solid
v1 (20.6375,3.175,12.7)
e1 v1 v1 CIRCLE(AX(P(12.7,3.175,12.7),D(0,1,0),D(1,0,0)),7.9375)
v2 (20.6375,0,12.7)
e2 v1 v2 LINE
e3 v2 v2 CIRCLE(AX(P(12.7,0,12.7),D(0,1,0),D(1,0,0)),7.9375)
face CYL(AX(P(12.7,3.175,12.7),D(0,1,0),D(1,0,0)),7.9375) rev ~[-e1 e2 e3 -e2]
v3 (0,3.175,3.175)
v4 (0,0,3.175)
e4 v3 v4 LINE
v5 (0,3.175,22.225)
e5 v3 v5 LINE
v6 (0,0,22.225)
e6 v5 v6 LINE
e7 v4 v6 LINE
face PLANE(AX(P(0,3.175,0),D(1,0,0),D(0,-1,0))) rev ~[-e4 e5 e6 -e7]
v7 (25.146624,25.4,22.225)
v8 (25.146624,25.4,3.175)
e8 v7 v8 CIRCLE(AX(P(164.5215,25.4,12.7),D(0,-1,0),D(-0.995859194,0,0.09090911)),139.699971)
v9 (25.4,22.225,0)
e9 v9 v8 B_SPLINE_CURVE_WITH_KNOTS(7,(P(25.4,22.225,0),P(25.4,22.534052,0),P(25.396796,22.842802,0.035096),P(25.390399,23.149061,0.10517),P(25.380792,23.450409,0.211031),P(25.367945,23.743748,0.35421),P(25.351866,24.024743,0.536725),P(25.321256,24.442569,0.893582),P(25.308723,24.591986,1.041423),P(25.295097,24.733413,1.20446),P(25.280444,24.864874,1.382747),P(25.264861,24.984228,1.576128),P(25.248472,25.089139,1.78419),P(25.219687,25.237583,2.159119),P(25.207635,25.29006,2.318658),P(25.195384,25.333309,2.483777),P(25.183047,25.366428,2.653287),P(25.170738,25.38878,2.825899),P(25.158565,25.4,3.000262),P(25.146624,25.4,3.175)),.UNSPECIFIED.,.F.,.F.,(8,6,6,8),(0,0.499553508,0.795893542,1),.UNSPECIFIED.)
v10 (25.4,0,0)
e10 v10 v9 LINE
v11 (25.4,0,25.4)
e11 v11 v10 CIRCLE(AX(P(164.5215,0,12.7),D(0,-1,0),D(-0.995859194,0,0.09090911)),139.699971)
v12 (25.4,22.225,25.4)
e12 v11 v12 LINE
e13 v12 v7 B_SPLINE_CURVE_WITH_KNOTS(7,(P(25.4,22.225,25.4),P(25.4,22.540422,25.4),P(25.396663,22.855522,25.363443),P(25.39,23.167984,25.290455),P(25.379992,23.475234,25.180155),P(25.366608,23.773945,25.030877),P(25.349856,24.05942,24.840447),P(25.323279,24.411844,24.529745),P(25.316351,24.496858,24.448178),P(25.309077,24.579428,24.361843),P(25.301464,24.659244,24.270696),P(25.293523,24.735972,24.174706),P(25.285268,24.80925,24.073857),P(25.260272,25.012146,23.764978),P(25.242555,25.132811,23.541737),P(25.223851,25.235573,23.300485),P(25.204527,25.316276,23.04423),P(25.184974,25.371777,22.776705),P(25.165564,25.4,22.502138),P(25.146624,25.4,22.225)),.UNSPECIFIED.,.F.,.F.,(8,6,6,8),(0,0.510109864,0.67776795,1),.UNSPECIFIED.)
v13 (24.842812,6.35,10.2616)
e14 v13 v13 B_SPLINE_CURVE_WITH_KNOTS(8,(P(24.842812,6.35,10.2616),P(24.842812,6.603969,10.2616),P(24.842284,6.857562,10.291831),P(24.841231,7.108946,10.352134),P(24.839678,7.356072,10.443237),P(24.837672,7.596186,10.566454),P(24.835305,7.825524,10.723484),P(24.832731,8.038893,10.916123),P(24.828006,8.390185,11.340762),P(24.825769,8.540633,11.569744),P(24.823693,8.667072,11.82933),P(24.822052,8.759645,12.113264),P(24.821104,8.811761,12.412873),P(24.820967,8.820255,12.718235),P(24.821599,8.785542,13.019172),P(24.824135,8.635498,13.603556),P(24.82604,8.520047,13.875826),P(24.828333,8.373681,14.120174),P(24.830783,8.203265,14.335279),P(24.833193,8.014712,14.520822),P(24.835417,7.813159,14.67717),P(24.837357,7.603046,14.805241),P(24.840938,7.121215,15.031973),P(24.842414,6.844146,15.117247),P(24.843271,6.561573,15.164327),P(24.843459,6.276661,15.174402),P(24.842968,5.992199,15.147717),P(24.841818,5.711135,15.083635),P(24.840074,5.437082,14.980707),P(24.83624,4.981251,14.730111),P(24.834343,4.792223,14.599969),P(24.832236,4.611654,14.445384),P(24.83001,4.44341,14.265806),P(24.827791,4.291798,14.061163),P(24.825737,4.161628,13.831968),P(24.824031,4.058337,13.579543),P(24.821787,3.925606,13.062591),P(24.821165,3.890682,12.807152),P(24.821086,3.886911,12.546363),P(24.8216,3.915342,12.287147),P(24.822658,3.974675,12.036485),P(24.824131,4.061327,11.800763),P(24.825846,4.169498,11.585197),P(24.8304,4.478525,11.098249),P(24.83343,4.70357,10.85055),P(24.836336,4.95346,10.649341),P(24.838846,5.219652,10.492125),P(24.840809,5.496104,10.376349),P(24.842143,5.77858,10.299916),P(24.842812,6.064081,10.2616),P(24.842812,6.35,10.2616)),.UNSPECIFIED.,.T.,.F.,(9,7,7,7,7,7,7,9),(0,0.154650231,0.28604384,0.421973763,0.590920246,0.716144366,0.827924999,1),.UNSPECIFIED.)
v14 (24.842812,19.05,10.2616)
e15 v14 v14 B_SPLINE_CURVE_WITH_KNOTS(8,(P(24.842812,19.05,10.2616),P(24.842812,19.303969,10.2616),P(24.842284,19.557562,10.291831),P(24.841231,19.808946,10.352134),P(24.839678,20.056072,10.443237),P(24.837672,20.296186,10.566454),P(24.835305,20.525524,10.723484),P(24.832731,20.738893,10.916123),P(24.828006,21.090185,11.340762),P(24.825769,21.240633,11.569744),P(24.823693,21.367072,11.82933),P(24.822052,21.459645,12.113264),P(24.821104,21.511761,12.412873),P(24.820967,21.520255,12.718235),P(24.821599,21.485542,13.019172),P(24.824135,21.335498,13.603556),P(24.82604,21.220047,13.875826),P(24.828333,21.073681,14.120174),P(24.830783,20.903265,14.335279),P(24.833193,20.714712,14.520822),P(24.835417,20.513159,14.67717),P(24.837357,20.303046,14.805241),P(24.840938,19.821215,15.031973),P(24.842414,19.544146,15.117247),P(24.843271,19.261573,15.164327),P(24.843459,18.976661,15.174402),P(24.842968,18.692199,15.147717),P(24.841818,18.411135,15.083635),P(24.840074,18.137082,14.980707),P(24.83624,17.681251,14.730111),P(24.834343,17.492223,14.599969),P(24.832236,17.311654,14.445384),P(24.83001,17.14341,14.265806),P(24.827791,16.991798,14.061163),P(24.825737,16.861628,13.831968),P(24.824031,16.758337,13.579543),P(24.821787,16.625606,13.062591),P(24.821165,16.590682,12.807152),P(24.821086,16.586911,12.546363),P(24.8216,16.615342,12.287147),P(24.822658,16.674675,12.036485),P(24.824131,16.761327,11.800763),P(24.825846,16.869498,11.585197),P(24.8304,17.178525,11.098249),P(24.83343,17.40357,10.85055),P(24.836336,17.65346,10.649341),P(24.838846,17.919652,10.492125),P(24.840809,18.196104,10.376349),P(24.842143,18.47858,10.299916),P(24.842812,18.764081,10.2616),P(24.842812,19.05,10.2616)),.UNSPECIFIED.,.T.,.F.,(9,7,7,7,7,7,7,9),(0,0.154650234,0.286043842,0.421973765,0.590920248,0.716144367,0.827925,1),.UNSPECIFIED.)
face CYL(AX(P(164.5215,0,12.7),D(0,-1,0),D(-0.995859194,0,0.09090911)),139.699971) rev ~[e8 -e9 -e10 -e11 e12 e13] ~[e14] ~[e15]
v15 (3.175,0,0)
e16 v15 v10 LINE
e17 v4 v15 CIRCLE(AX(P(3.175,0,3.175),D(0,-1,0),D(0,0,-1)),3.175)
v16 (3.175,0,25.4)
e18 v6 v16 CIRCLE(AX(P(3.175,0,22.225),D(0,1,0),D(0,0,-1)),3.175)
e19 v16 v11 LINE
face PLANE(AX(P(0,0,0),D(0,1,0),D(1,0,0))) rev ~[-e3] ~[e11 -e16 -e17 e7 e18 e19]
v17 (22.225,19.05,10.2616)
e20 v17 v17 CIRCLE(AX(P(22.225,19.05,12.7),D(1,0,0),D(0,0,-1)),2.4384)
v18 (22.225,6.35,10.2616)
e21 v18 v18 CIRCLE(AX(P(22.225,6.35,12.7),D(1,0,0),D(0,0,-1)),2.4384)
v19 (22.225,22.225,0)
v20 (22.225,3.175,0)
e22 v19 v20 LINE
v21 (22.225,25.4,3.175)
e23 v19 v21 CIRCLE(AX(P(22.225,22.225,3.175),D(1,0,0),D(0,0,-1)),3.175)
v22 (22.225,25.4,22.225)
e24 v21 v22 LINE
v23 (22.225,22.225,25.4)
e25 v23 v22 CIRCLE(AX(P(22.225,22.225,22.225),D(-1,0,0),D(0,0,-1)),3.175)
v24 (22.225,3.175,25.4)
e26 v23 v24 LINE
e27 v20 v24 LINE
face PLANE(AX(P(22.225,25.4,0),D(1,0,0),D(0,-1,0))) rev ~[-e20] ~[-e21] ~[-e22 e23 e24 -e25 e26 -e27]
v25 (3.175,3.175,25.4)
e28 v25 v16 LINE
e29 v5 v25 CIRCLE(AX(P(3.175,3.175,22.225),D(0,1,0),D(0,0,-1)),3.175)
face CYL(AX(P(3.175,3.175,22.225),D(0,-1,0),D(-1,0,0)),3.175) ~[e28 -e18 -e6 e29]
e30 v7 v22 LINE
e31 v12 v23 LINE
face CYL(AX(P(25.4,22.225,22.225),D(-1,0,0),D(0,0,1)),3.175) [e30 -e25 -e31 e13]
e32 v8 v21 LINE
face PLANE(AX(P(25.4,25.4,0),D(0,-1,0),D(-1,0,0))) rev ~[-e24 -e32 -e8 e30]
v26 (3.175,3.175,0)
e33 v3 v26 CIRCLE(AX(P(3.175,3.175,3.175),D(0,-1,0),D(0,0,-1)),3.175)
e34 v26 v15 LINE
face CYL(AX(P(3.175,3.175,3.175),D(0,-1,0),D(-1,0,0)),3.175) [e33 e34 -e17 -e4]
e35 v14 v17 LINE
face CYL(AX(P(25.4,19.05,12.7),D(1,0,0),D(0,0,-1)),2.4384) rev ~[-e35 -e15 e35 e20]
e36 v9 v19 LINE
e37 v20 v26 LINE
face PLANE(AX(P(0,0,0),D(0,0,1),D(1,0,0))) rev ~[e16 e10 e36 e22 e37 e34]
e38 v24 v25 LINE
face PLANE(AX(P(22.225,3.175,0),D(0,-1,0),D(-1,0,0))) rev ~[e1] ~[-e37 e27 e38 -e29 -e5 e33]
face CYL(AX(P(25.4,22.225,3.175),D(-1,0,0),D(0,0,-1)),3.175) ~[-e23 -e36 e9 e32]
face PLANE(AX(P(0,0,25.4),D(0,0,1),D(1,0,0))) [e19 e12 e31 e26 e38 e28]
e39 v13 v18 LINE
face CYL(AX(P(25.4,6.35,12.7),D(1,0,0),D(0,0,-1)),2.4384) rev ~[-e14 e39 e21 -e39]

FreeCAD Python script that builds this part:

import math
import FreeCAD as App
import Part
import Sketcher
from FreeCAD import Vector
Q = App.Units.Quantity


def edges_at(feature, points):
    """Names of the edges that pass closest to the given points."""
    edges = feature.Shape.Edges
    near = lambda p: min(range(len(edges)), key=lambda i: edges[i].distToShape(Part.Vertex(*p))[0])
    return sorted({f"Edge{near(p) + 1}" for p in points})


def add_polygon(sketch, points):
    """Adds a closed chain of lines whose ends are joined by coincident constraints."""
    first, n = sketch.GeometryCount, len(points)
    for a, b in zip(points, points[1:] + points[:1]):
        sketch.addGeometry(Part.LineSegment(App.Vector(*a, 0), App.Vector(*b, 0)), False)
    for i in range(n):
        sketch.addConstraint(Sketcher.Constraint("Coincident", first + i, 2, first + (i + 1) % n, 1))

doc = App.newDocument("Part")
body = doc.addObject("PartDesign::Body", "Body")

# Sketch on XY plane
sketch1 = doc.addObject("Sketcher::SketchObject", "Sketch")
body.addObject(sketch1)
sketch1.AttachmentSupport = (doc.XY_Plane, [""])
sketch1.MapMode = "FlatFace"
add_polygon(sketch1, [(0, 3.2), (0, 0), (25.4, 0), (25.4, 25.4), (22.2, 25.4), (22.2, 3.2)])  # lines 0-5
sketch1.addConstraint(Sketcher.Constraint("Vertical", 0))
sketch1.addConstraint(Sketcher.Constraint("Horizontal", 1))
sketch1.addConstraint(Sketcher.Constraint("Vertical", 2))
sketch1.addConstraint(Sketcher.Constraint("Horizontal", 3))
sketch1.addConstraint(Sketcher.Constraint("Vertical", 4))
sketch1.addConstraint(Sketcher.Constraint("Horizontal", 5))
sketch1.addConstraint(Sketcher.Constraint("Coincident", 0, 2, -1, 1))
sketch1.addConstraint(Sketcher.Constraint("Equal", 3, 0))
sketch1.addConstraint(Sketcher.Constraint("Equal", 1, 2))
sketch1.addConstraint(Sketcher.Constraint("DistanceX", 1, 1, 1, 2, Q("1 in")))
sketch1.addConstraint(Sketcher.Constraint("DistanceX", 3, 2, 3, 1, Q("0.125 in")))
pad1 = doc.addObject("PartDesign::Pad", "Pad")
body.addObject(pad1)
pad1.Profile = sketch1
pad1.Length = Q("1 in")

# Sketch on YZ plane
sketch2 = doc.addObject("Sketcher::SketchObject", "Sketch001")
body.addObject(sketch2)
sketch2.AttachmentSupport = (doc.YZ_Plane, [""])
sketch2.MapMode = "FlatFace"
sketch2.AttachmentOffset = App.Placement(Vector(0, 0, 1 * 25.4), App.Rotation())
sketch2.addGeometry(Part.Circle(Vector(19.1, 12.7, 0), Vector(0, 0, 1), 2.4), False)
sketch2.addGeometry(Part.Circle(Vector(6.3, 12.7, 0), Vector(0, 0, 1), 2.4), False)
sketch2.addConstraint(Sketcher.Constraint("Equal", 0, 1))
sketch2.addConstraint(Sketcher.Constraint("Horizontal", 0, 3, 1, 3))
sketch2.addConstraint(Sketcher.Constraint("Diameter", 0, Q("0.192 in")))
sketch2.addConstraint(Sketcher.Constraint("DistanceY", -1, 1, 0, 3, Q("0.5 in")))
sketch2.addConstraint(Sketcher.Constraint("DistanceX", 1, 3, 0, 3, Q("0.5 in")))
sketch2.addConstraint(Sketcher.Constraint("DistanceX", -1, 1, 1, 3, Q("0.25 in")))
pocket1 = doc.addObject("PartDesign::Pocket", "Pocket")
body.addObject(pocket1)
pocket1.Profile = sketch2
pocket1.Type = "ThroughAll"

# Sketch on XZ plane
sketch3 = doc.addObject("Sketcher::SketchObject", "Sketch002")
body.addObject(sketch3)
sketch3.AttachmentSupport = (doc.XZ_Plane, [""])
sketch3.MapMode = "FlatFace"
sketch3.AttachmentOffset = App.Placement(Vector(0, 0, -0.125 * 25.4), App.Rotation())
sketch3.addGeometry(Part.Circle(Vector(13, 13, 0), Vector(0, 0, 1), 8), False)
sketch3.addConstraint(Sketcher.Constraint("Diameter", 0, Q("0.625 in")))
sketch3.addConstraint(Sketcher.Constraint("DistanceX", -1, 1, 0, 3, Q("0.5 in")))
sketch3.addConstraint(Sketcher.Constraint("DistanceY", -1, 1, 0, 3, Q("0.5 in")))
pocket2 = doc.addObject("PartDesign::Pocket", "Pocket001")
body.addObject(pocket2)
pocket2.Profile = sketch3
pocket2.Type = "UpToFirst"
pocket2.Reversed = True
doc.recompute()

fillet = doc.addObject("PartDesign::Fillet", "Fillet")
body.addObject(fillet)
fillet.Base = (pocket2, edges_at(pocket2, [
    (0, 1.587, 0),
    (0, 1.587, 25.4),
    (23.812, 25.4, 25.4),
    (23.812, 25.4, 0),
]))
fillet.Radius = Q("0.125 in")

# Sketch on XZ plane
sketch4 = doc.addObject("Sketcher::SketchObject", "Sketch003")
body.addObject(sketch4)
sketch4.AttachmentSupport = (doc.XZ_Plane, [""])
sketch4.MapMode = "FlatFace"
sketch4.addGeometry(Part.ArcOfCircle(Part.Circle(Vector(165, 13, 0), Vector(0, 0, 1), 140), math.radians(174.78), math.radians(185.22)), False)
sketch4.addGeometry(Part.LineSegment(Vector(25, 0, 0), Vector(25, 25, 0)), False)
sketch4.addConstraint(Sketcher.Constraint("Coincident", 0, 1, 1, 2))
sketch4.addConstraint(Sketcher.Constraint("Coincident", 1, 1, 0, 2))
sketch4.addConstraint(Sketcher.Constraint("Vertical", 1))
sketch4.addConstraint(Sketcher.Constraint("PointOnObject", 1, 1, -1))
sketch4.addConstraint(Sketcher.Constraint("Radius", 0, Q("5.5 in")))
sketch4.addConstraint(Sketcher.Constraint("DistanceY", 1, 1, 1, 2, Q("1 in")))
sketch4.addConstraint(Sketcher.Constraint("DistanceX", -1, 1, 0, 1, Q("1 in")))
pocket3 = doc.addObject("PartDesign::Pocket", "Pocket002")
body.addObject(pocket3)
pocket3.Profile = sketch4
pocket3.Type = "ThroughAll"

doc.recompute()
